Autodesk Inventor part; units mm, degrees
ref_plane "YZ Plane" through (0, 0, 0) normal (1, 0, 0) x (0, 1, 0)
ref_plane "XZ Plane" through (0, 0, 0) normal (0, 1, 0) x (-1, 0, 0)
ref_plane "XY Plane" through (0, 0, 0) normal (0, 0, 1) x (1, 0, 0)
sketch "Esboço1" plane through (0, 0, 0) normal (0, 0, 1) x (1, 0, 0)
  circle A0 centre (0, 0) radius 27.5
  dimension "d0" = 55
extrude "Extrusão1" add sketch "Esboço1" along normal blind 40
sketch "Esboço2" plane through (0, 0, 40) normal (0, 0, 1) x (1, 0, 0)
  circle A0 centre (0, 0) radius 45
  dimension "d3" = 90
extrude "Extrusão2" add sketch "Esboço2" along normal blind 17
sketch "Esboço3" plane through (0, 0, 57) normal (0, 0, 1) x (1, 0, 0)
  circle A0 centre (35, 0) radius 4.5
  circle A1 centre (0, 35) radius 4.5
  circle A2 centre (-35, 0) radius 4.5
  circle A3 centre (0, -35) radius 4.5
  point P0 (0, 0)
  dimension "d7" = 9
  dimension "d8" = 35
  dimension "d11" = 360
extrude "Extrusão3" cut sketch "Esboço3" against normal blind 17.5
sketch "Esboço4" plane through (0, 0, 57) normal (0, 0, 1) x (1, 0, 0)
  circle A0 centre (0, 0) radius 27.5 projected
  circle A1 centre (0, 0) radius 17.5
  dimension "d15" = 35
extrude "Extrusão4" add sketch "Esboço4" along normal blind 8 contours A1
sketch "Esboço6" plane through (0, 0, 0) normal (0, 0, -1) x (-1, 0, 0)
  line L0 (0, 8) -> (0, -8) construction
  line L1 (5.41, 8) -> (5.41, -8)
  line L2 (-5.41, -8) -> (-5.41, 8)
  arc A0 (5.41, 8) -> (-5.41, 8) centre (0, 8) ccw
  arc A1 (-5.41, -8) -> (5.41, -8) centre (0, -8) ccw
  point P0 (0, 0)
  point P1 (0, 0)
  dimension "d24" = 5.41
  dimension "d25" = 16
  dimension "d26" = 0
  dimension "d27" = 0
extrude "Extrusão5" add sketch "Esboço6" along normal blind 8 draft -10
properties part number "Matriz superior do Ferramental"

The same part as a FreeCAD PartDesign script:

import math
import FreeCAD as App
import Part
import Sketcher
from FreeCAD import Vector

doc = App.newDocument("Part")
params = doc.addObject("Spreadsheet::Sheet", "Params")
for row, (alias, value) in enumerate([
    ("sketch1_diameter", "55 mm"),
    ("pad1_length", "40 mm"),
    ("sketch2_diameter", "90 mm"),
    ("pad2_length", "17 mm"),
    ("sketch3_diameter", "9 mm"),
    ("pocket1_length", "17.5 mm"),
    ("sketch4_diameter", "35 mm"),
    ("pad3_length", "8 mm"),
    ("sketch5_height", "16 mm"),
    ("sketch5_radius", "5.41 mm"),
    ("pad4_length", "8 mm"),
    ("pad4_taper", "-10 deg"),
], start=1):
    params.set(f"A{row}", alias)
    params.set(f"B{row}", "=" + value)
    params.setAlias(f"B{row}", alias)

body = doc.addObject("PartDesign::Body", "Body")

# Sketch on XY plane
sketch1 = body.newObject("Sketcher::SketchObject", "Sketch")
sketch1.AttachmentSupport = (doc.getObject("XY_Plane"), [""])
sketch1.MapMode = "FlatFace"
sketch1.addGeometry(Part.Circle(Vector(0, 0, 0), Vector(0, 0, 1), 28), False)
sketch1.addConstraint([
    Sketcher.Constraint("Coincident", 0, 3, -1, 1),
    Sketcher.Constraint("Diameter", 0, 55.0),
])
sketch1.setExpression("Constraints[1]", "Params.sketch1_diameter")
pad1 = body.newObject("PartDesign::Pad", "Pad")
pad1.Profile = sketch1
pad1.setExpression("Length", "Params.pad1_length")

# Sketch on XY plane
sketch2 = body.newObject("Sketcher::SketchObject", "Sketch001")
sketch2.AttachmentSupport = (doc.getObject("XY_Plane"), [""])
sketch2.MapMode = "FlatFace"
sketch2.AttachmentOffset = App.Placement(Vector(0, 0, 40), App.Rotation())
sketch2.addGeometry(Part.Circle(Vector(0, 0, 0), Vector(0, 0, 1), 45), False)
sketch2.addConstraint([
    Sketcher.Constraint("Coincident", 0, 3, -1, 1),
    Sketcher.Constraint("Diameter", 0, 90.0),
])
sketch2.setExpression("Constraints[1]", "Params.sketch2_diameter")
pad2 = body.newObject("PartDesign::Pad", "Pad001")
pad2.Profile = sketch2
pad2.setExpression("Length", "Params.pad2_length")

# Sketch on XY plane
sketch3 = body.newObject("Sketcher::SketchObject", "Sketch002")
sketch3.AttachmentSupport = (doc.getObject("XY_Plane"), [""])
sketch3.MapMode = "FlatFace"
sketch3.AttachmentOffset = App.Placement(Vector(0, 0, 57), App.Rotation())
sketch3.addGeometry([
    Part.Circle(Vector(35, 0, 0), Vector(0, 0, 1), 4.5),
    Part.Circle(Vector(0, 35, 0), Vector(0, 0, 1), 4.5),
    Part.Circle(Vector(-35, 0, 0), Vector(0, 0, 1), 4.5),
    Part.Circle(Vector(0, -35, 0), Vector(0, 0, 1), 4.5),
], False)
sketch3.addConstraint([
    Sketcher.Constraint("Equal", 0, 1),
    Sketcher.Constraint("Equal", 1, 2),
    Sketcher.Constraint("Equal", 2, 3),
    Sketcher.Constraint("Symmetric", 0, 3, 2, 3, -1, 1),
    Sketcher.Constraint("Symmetric", 1, 3, 3, 3, -1, 1),
    Sketcher.Constraint("PointOnObject", 0, 3, -1),
    Sketcher.Constraint("PointOnObject", 1, 3, -2),
    Sketcher.Constraint("Diameter", 0, 9.0),
    Sketcher.Constraint("DistanceX", -1, 1, 0, 3, 35.0),
    Sketcher.Constraint("DistanceY", -1, 1, 1, 3, 35.0),
])
sketch3.setExpression("Constraints[7]", "Params.sketch3_diameter")
pocket1 = body.newObject("PartDesign::Pocket", "Pocket")
pocket1.Profile = sketch3
pocket1.setExpression("Length", "Params.pocket1_length")

# Sketch on XY plane
sketch4 = body.newObject("Sketcher::SketchObject", "Sketch003")
sketch4.AttachmentSupport = (doc.getObject("XY_Plane"), [""])
sketch4.MapMode = "FlatFace"
sketch4.AttachmentOffset = App.Placement(Vector(0, 0, 57), App.Rotation())
sketch4.addGeometry(Part.Circle(Vector(0, 0, 0), Vector(0, 0, 1), 18), False)
sketch4.addConstraint([
    Sketcher.Constraint("Coincident", 0, 3, -1, 1),
    Sketcher.Constraint("Diameter", 0, 35.0),
])
sketch4.setExpression("Constraints[1]", "Params.sketch4_diameter")
pad3 = body.newObject("PartDesign::Pad", "Pad002")
pad3.Profile = sketch4
pad3.setExpression("Length", "Params.pad3_length")

# Sketch on XY plane
sketch5 = body.newObject("Sketcher::SketchObject", "Sketch004")
sketch5.AttachmentSupport = (doc.getObject("XY_Plane"), [""])
sketch5.MapMode = "FlatFace"
sketch5.addGeometry([
    Part.LineSegment(Vector(-5, -8, 0), Vector(-5, 8, 0)),
    Part.ArcOfCircle(Part.Circle(Vector(0, 8, 0), Vector(0, 0, 1), 5), math.radians(0), math.radians(180)),
    Part.LineSegment(Vector(5, 8, 0), Vector(5, -8, 0)),
    Part.ArcOfCircle(Part.Circle(Vector(0, -8, 0), Vector(0, 0, 1), 5), math.radians(180), math.radians(360)),
], False)
sketch5.addConstraint([
    Sketcher.Constraint("Tangent", 0, 2, 1, 2),
    Sketcher.Constraint("Tangent", 1, 1, 2, 1),
    Sketcher.Constraint("Tangent", 2, 2, 3, 2),
    Sketcher.Constraint("Tangent", 3, 1, 0, 1),
    Sketcher.Constraint("Vertical", 0),
    Sketcher.Constraint("Vertical", 2),
    Sketcher.Constraint("Symmetric", 1, 3, 3, 3, -1, 1),
    Sketcher.Constraint("DistanceY", 0, 1, 0, 2, 16.0),
    Sketcher.Constraint("Radius", 1, 5.41),
])
sketch5.setExpression("Constraints[7]", "Params.sketch5_height")
sketch5.setExpression("Constraints[8]", "Params.sketch5_radius")
pad4 = body.newObject("PartDesign::Pad", "Pad003")
pad4.Profile = sketch5
pad4.setExpression("Length", "Params.pad4_length")
pad4.Reversed = True
pad4.setExpression("TaperAngle", "Params.pad4_taper")

doc.recompute()
